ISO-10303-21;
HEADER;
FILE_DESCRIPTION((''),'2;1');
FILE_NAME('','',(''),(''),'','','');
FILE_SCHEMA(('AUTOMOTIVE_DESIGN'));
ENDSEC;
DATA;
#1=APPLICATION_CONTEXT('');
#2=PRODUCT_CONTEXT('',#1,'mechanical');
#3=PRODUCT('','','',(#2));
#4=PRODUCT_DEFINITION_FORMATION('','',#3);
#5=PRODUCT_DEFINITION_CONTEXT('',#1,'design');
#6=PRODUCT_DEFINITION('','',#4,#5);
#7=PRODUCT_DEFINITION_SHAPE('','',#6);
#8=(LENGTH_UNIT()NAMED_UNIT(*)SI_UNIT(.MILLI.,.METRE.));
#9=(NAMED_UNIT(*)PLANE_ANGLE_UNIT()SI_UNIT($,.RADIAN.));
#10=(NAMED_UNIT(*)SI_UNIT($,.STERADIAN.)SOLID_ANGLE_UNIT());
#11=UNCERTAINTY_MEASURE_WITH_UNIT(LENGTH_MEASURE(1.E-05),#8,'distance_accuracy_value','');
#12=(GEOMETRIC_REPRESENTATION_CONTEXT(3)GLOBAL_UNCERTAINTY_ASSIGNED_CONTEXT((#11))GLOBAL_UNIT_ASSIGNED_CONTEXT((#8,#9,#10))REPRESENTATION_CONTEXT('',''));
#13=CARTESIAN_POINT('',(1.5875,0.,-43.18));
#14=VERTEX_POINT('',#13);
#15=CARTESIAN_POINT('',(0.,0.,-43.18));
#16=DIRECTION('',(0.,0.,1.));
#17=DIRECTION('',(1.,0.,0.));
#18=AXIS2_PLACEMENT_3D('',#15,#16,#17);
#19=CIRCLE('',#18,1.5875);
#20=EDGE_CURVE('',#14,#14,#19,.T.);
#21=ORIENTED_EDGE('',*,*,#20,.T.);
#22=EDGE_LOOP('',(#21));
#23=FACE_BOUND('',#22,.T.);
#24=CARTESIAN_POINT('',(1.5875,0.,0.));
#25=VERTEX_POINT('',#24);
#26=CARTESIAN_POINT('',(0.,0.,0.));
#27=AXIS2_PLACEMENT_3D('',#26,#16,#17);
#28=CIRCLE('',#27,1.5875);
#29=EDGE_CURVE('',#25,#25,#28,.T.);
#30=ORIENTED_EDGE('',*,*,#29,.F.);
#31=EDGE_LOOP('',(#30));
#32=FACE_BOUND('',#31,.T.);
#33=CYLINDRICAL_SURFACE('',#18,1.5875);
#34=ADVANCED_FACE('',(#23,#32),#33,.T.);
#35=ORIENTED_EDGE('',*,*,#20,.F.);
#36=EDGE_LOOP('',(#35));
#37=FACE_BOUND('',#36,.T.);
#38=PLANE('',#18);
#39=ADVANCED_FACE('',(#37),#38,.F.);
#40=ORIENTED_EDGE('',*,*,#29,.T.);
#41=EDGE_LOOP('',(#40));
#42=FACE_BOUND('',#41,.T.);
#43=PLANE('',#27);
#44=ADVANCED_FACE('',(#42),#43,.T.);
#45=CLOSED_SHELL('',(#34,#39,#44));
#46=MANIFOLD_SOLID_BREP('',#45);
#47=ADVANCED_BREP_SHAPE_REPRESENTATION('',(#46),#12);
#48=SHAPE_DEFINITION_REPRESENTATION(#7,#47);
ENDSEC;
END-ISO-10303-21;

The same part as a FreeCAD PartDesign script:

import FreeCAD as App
import Part
import Sketcher
Q = App.Units.Quantity

doc = App.newDocument("Part")
body = doc.addObject("PartDesign::Body", "Body")

sketch1 = body.newObject("Sketcher::SketchObject", "Sketch")
sketch1.AttachmentSupport = (doc.getObject("XY_Plane"), [""])
sketch1.MapMode = "FlatFace"
sketch1.addGeometry(Part.Circle(App.Vector(0, 0, 0), App.Vector(0, 0, 1), 1.5875), False)
sketch1.addConstraint([
    Sketcher.Constraint("Coincident", 0, 3, -1, 1),
    Sketcher.Constraint("Diameter", 0, Q("0.125 in")),
])
pad1 = body.newObject("PartDesign::Pad", "Pad")
pad1.Profile = sketch1
pad1.Length = Q("1.7 in")
pad1.Reversed = True

doc.recompute()
